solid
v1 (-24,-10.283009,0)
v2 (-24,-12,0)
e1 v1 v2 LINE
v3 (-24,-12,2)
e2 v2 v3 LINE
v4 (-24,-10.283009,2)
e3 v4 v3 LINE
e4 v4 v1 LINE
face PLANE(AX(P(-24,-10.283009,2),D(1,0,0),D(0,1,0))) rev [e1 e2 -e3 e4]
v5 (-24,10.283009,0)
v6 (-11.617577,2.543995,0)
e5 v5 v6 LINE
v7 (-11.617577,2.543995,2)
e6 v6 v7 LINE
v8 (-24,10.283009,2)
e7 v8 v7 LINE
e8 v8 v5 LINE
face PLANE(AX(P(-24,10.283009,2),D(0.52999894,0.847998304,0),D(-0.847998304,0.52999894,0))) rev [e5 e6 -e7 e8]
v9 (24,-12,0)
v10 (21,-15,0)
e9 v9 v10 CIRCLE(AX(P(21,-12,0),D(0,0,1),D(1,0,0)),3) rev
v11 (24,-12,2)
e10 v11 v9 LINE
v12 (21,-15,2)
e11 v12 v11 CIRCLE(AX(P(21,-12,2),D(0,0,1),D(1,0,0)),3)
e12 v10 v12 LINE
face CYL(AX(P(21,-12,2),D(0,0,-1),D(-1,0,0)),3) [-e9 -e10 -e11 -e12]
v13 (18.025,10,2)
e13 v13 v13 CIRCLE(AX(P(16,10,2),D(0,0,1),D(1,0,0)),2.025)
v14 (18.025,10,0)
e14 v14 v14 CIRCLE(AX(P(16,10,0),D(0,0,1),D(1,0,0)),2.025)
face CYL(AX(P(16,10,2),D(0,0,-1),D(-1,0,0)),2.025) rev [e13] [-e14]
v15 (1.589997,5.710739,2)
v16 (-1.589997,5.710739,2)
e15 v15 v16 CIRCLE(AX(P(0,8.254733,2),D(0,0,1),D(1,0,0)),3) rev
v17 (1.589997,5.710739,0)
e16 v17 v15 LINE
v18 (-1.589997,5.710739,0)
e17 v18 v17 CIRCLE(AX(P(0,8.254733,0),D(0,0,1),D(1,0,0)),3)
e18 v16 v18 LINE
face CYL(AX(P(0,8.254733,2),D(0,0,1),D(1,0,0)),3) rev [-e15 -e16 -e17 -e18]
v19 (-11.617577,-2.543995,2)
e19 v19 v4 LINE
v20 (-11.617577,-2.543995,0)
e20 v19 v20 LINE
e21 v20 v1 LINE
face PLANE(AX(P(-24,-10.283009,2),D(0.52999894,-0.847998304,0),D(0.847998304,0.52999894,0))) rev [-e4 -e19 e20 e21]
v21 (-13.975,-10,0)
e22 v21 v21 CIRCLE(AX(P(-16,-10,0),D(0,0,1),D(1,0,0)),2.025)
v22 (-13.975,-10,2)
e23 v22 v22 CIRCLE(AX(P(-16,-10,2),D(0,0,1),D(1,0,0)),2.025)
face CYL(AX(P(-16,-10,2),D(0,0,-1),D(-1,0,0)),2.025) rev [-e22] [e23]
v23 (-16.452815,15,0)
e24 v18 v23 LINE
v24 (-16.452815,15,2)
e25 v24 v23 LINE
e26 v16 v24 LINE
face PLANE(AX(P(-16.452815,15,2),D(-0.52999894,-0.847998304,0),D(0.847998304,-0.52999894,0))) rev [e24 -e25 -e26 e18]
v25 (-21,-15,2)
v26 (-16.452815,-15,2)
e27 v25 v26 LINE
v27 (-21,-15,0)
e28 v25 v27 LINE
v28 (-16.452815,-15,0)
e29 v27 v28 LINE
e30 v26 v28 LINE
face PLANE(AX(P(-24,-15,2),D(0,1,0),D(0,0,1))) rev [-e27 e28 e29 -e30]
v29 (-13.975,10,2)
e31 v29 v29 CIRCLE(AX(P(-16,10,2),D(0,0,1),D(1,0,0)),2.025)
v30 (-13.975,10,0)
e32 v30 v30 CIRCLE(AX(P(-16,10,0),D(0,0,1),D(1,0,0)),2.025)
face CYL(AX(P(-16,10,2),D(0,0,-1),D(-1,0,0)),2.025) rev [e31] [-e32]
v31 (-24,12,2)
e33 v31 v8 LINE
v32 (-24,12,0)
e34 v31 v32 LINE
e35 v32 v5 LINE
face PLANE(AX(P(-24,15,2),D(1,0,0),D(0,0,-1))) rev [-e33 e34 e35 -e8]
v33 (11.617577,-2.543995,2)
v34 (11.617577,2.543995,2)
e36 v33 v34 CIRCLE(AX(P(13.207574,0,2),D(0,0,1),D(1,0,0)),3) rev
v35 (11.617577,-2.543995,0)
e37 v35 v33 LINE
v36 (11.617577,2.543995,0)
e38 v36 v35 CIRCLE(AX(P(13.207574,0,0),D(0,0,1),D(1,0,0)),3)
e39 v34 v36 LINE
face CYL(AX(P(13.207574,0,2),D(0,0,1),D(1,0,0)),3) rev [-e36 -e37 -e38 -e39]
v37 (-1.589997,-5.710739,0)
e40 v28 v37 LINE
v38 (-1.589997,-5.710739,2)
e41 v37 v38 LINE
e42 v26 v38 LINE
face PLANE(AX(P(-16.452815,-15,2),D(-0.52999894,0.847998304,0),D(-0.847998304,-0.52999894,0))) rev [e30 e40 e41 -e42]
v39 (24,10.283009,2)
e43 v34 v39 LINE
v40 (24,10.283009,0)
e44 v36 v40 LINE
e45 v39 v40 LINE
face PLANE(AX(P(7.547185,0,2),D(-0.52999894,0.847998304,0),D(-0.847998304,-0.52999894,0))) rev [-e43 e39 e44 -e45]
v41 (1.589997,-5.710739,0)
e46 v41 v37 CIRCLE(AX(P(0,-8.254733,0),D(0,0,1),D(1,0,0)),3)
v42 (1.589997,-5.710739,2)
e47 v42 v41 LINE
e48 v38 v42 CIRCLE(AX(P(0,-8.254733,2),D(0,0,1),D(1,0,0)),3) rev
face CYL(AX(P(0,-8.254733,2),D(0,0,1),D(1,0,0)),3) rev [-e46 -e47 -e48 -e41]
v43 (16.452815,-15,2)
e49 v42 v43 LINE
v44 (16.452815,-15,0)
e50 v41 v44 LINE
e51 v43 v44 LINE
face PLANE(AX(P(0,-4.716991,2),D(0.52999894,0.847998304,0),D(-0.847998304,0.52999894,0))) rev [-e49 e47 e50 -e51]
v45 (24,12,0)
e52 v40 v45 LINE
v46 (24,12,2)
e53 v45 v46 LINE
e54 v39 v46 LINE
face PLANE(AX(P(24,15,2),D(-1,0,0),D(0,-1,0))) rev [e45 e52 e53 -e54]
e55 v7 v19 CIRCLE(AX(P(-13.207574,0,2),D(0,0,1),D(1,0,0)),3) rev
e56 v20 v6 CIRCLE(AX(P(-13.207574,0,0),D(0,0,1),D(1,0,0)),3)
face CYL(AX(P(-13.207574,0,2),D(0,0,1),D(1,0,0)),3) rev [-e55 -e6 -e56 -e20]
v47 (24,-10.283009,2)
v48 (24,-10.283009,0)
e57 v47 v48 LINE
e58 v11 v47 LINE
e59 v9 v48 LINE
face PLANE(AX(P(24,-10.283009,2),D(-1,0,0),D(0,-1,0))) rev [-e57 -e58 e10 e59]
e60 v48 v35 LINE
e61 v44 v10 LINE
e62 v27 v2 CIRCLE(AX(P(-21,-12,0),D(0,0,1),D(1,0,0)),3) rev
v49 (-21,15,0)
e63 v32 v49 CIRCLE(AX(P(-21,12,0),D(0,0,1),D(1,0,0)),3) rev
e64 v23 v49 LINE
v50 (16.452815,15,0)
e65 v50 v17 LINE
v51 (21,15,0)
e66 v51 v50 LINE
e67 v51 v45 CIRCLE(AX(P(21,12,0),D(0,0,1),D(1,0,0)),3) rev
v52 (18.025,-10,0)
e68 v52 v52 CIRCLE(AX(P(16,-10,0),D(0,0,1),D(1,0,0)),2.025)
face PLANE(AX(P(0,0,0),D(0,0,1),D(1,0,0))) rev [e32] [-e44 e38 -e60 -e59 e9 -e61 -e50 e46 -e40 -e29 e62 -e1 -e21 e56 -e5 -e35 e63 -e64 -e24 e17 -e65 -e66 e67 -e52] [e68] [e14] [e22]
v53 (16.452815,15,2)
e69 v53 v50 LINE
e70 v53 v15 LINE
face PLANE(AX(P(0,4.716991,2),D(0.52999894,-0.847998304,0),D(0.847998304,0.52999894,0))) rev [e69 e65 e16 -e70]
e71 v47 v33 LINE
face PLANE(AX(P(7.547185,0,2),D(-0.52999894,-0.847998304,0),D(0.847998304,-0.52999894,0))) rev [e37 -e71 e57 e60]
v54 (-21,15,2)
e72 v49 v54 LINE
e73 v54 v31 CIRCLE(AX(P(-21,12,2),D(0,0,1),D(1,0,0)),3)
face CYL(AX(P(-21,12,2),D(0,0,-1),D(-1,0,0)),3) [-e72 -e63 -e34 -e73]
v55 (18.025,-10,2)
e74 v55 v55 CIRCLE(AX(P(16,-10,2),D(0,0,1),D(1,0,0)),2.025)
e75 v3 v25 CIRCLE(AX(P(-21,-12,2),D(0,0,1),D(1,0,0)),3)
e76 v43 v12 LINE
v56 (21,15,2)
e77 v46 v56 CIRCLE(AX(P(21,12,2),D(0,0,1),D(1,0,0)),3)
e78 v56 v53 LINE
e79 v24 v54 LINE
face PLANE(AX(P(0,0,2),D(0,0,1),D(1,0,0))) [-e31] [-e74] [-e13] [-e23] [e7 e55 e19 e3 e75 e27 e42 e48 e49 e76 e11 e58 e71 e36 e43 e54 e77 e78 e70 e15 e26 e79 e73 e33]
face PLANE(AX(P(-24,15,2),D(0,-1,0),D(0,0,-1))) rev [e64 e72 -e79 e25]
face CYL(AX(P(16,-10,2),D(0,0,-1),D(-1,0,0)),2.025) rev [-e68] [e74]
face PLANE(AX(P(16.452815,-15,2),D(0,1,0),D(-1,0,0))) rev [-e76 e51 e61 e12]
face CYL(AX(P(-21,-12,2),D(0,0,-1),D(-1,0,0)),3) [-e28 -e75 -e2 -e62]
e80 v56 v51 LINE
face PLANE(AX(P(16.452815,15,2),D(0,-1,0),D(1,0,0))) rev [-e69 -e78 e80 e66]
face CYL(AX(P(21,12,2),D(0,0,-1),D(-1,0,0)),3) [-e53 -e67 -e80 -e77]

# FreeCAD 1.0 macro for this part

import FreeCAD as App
import Part
import Sketcher
from FreeCAD import Vector
Q = App.Units.Quantity


def edges_at(feature, points):
    """Names of the edges that pass closest to the given points."""
    edges = feature.Shape.Edges
    near = lambda p: min(range(len(edges)), key=lambda i: edges[i].distToShape(Part.Vertex(*p))[0])
    return sorted({f"Edge{near(p) + 1}" for p in points})

doc = App.newDocument("Part")
params = doc.addObject("Spreadsheet::Sheet", "Params")
for row, (alias, value) in enumerate([
    ("sketch1_diameter", "4.05 mm"),
    ("pad1_length", "2 mm"),
    ("fillet_radius", "3 mm"),
], start=1):
    params.set(f"A{row}", alias)
    params.set(f"B{row}", "=" + value)
    params.setAlias(f"B{row}", alias)

body = doc.addObject("PartDesign::Body", "Body")

# Sketch on XY plane
sketch1 = body.newObject("Sketcher::SketchObject", "Sketch")
sketch1.AttachmentSupport = (doc.getObject("XY_Plane"), [""])
sketch1.MapMode = "FlatFace"
sketch1.addGeometry(Part.LineSegment(Vector(-16.5, 15, 0), Vector(-24, 15, 0)), False)
sketch1.addGeometry(Part.LineSegment(Vector(-24, 15, 0), Vector(-24, 10.3, 0)), False)
sketch1.addGeometry(Part.LineSegment(Vector(-24, 10.3, 0), Vector(-7.5, 0, 0)), False)
sketch1.addGeometry(Part.LineSegment(Vector(-7.5, 0, 0), Vector(-24, -10.3, 0)), False)
sketch1.addGeometry(Part.LineSegment(Vector(-24, -10.3, 0), Vector(-24, -15, 0)), False)
sketch1.addGeometry(Part.LineSegment(Vector(-24, -15, 0), Vector(-16.5, -15, 0)), False)
sketch1.addGeometry(Part.LineSegment(Vector(-16.5, -15, 0), Vector(0, -4.7, 0)), False)
sketch1.addGeometry(Part.LineSegment(Vector(0, -4.7, 0), Vector(16.5, -15, 0)), False)
sketch1.addGeometry(Part.LineSegment(Vector(16.5, -15, 0), Vector(24, -15, 0)), False)
sketch1.addGeometry(Part.LineSegment(Vector(24, -15, 0), Vector(24, -10.3, 0)), False)
sketch1.addGeometry(Part.LineSegment(Vector(24, -10.3, 0), Vector(7.5, 0, 0)), False)
sketch1.addGeometry(Part.LineSegment(Vector(7.5, 0, 0), Vector(24, 10.3, 0)), False)
sketch1.addGeometry(Part.LineSegment(Vector(24, 10.3, 0), Vector(24, 15, 0)), False)
sketch1.addGeometry(Part.LineSegment(Vector(24, 15, 0), Vector(16.5, 15, 0)), False)
sketch1.addGeometry(Part.LineSegment(Vector(16.5, 15, 0), Vector(0, 4.7, 0)), False)
sketch1.addGeometry(Part.LineSegment(Vector(0, 4.7, 0), Vector(-16.5, 15, 0)), False)
sketch1.addGeometry(Part.Circle(Vector(16, -10, 0), Vector(0, 0, 1), 2), False)
sketch1.addGeometry(Part.Circle(Vector(-16, -10, 0), Vector(0, 0, 1), 2), False)
sketch1.addGeometry(Part.Circle(Vector(16, 10, 0), Vector(0, 0, 1), 2), False)
sketch1.addGeometry(Part.Circle(Vector(-16, 10, 0), Vector(0, 0, 1), 2), False)
sketch1.addConstraint(Sketcher.Constraint("Coincident", 0, 2, 1, 1))
sketch1.addConstraint(Sketcher.Constraint("Coincident", 1, 2, 2, 1))
sketch1.addConstraint(Sketcher.Constraint("Coincident", 2, 2, 3, 1))
sketch1.addConstraint(Sketcher.Constraint("Coincident", 3, 2, 4, 1))
sketch1.addConstraint(Sketcher.Constraint("Coincident", 4, 2, 5, 1))
sketch1.addConstraint(Sketcher.Constraint("Coincident", 5, 2, 6, 1))
sketch1.addConstraint(Sketcher.Constraint("Coincident", 6, 2, 7, 1))
sketch1.addConstraint(Sketcher.Constraint("Coincident", 7, 2, 8, 1))
sketch1.addConstraint(Sketcher.Constraint("Coincident", 8, 2, 9, 1))
sketch1.addConstraint(Sketcher.Constraint("Coincident", 9, 2, 10, 1))
sketch1.addConstraint(Sketcher.Constraint("Coincident", 10, 2, 11, 1))
sketch1.addConstraint(Sketcher.Constraint("Coincident", 11, 2, 12, 1))
sketch1.addConstraint(Sketcher.Constraint("Coincident", 12, 2, 13, 1))
sketch1.addConstraint(Sketcher.Constraint("Coincident", 13, 2, 14, 1))
sketch1.addConstraint(Sketcher.Constraint("Coincident", 14, 2, 15, 1))
sketch1.addConstraint(Sketcher.Constraint("Coincident", 15, 2, 0, 1))
sketch1.addConstraint(Sketcher.Constraint("Horizontal", 0))
sketch1.addConstraint(Sketcher.Constraint("Vertical", 1))
sketch1.addConstraint(Sketcher.Constraint("Vertical", 4))
sketch1.addConstraint(Sketcher.Constraint("Horizontal", 5))
sketch1.addConstraint(Sketcher.Constraint("Horizontal", 8))
sketch1.addConstraint(Sketcher.Constraint("Vertical", 9))
sketch1.addConstraint(Sketcher.Constraint("Vertical", 12))
sketch1.addConstraint(Sketcher.Constraint("Horizontal", 13))
sketch1.addConstraint(Sketcher.Constraint("Equal", 16, 17))
sketch1.addConstraint(Sketcher.Constraint("Equal", 17, 18))
sketch1.addConstraint(Sketcher.Constraint("Equal", 18, 19))
sketch1.addConstraint(Sketcher.Constraint("Symmetric", 17, 3, 18, 3, -1, 1))
sketch1.addConstraint(Sketcher.Constraint("Symmetric", 16, 3, 19, 3, -1, 1))
sketch1.addConstraint(Sketcher.Constraint("Symmetric", 0, 2, 8, 2, -1, 1))
sketch1.addConstraint(Sketcher.Constraint("Symmetric", 2, 2, 10, 2, -1, 1))
sketch1.addConstraint(Sketcher.Constraint("Symmetric", 3, 2, 11, 2, -1, 1))
sketch1.addConstraint(Sketcher.Constraint("Symmetric", 5, 2, 13, 2, -1, 1))
sketch1.addConstraint(Sketcher.Constraint("Symmetric", 6, 2, 14, 2, -1, 1))
sketch1.addConstraint(Sketcher.Constraint("Symmetric", 16, 3, 17, 3, -2))
sketch1.addConstraint(Sketcher.Constraint("Symmetric", 5, 2, 7, 2, -2))
sketch1.addConstraint(Sketcher.Constraint("Symmetric", 3, 2, 9, 2, -2))
sketch1.addConstraint(Sketcher.Constraint("PointOnObject", 2, 2, -1))
sketch1.addConstraint(Sketcher.Constraint("PointOnObject", 6, 2, -2))
sketch1.addConstraint(Sketcher.Constraint("Parallel", 3, 6))
sketch1.addConstraint(Sketcher.Constraint("Parallel", 2, 7))
sketch1.addConstraint(Sketcher.Constraint("Parallel", 10, 15))
sketch1.addConstraint(Sketcher.Constraint("Equal", 3, 6))
sketch1.addConstraint(Sketcher.Constraint("Diameter", 16, Q("4.05 mm")))
sketch1.addConstraint(Sketcher.Constraint("DistanceX", -1, 1, 16, 3, Q("16 mm")))
sketch1.addConstraint(Sketcher.Constraint("DistanceY", 16, 3, -1, 1, Q("10 mm")))
sketch1.addConstraint(Sketcher.Constraint("DistanceX", 0, 2, -1, 1, Q("24 mm")))
sketch1.addConstraint(Sketcher.Constraint("DistanceY", -1, 1, 0, 2, Q("15 mm")))
sketch1.addConstraint(Sketcher.Constraint("DistanceY", 1, 2, 1, 1, Q("4.716991 mm")))
sketch1.addConstraint(Sketcher.Constraint("DistanceX", 0, 2, 0, 1, Q("7.547185 mm")))
sketch1.setExpression("Constraints[43]", "Params.sketch1_diameter")
pad1 = body.newObject("PartDesign::Pad", "Pad")
pad1.Profile = sketch1
pad1.setExpression("Length", "Params.pad1_length")
doc.recompute()

fillet = body.newObject("PartDesign::Fillet", "Fillet")
fillet.Base = (pad1, edges_at(pad1, [
    (24, -15, 1),
    (0, -4.717, 1),
    (-24, -15, 1),
    (-7.547, 0, 1),
    (-24, 15, 1),
    (0, 4.717, 1),
    (24, 15, 1),
    (7.547, 0, 1),
]))
fillet.setExpression("Radius", "Params.fillet_radius")

doc.recompute()
